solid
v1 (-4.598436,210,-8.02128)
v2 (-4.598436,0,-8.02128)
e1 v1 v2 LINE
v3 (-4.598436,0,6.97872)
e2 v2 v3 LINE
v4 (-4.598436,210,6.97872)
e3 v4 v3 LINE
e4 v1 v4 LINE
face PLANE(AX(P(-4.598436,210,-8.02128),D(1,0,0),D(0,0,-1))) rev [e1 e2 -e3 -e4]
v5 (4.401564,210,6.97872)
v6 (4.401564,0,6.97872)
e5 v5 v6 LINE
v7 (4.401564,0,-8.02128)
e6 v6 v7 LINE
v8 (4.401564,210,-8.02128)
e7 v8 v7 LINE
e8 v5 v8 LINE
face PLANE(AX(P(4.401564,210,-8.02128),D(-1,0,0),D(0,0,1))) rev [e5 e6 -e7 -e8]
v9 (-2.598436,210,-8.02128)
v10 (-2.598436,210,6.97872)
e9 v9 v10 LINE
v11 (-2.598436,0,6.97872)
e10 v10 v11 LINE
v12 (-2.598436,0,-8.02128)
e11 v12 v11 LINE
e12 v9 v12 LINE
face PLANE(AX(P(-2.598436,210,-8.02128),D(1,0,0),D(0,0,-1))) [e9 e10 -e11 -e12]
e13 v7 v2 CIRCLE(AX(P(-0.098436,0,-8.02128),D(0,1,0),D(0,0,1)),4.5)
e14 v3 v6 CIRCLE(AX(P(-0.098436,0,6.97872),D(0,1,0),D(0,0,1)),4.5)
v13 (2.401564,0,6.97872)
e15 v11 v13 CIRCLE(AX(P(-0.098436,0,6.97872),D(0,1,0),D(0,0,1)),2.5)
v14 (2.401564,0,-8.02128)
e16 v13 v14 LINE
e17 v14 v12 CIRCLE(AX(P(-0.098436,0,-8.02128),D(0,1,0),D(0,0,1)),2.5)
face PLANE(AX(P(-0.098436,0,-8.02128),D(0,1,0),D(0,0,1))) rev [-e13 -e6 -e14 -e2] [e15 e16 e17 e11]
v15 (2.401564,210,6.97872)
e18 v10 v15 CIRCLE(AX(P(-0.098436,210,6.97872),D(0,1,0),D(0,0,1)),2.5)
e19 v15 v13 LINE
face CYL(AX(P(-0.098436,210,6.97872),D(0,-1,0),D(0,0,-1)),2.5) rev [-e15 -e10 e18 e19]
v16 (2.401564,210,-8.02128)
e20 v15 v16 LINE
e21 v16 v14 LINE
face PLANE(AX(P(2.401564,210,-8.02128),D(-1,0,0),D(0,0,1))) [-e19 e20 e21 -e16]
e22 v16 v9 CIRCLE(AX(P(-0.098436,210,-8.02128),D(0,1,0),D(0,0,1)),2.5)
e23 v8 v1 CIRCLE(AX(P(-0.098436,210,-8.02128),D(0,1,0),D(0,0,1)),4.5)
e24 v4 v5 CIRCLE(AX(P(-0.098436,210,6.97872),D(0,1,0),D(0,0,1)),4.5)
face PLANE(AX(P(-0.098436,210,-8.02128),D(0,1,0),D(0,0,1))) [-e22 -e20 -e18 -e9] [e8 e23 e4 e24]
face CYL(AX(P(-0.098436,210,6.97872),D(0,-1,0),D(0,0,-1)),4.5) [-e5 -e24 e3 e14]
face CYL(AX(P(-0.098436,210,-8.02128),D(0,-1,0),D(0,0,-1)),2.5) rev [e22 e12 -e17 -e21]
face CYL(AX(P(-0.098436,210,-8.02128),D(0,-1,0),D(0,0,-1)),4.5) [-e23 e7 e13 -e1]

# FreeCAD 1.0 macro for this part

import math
import FreeCAD as App
import Part
import Sketcher
from FreeCAD import Vector

doc = App.newDocument("Part")
params = doc.addObject("Spreadsheet::Sheet", "Params")
for row, (alias, value) in enumerate([
    ("sketch1_radius", "4.5 mm"),
    ("sketch1_radius2", "2.5 mm"),
    ("sketch1_height", "15 mm"),
    ("pad1_length", "210 mm"),
], start=1):
    params.set(f"A{row}", alias)
    params.set(f"B{row}", "=" + value)
    params.setAlias(f"B{row}", alias)

body = doc.addObject("PartDesign::Body", "Body")

# Sketch on XZ plane
sketch1 = doc.addObject("Sketcher::SketchObject", "Sketch")
body.addObject(sketch1)
sketch1.AttachmentSupport = (doc.XZ_Plane, [""])
sketch1.MapMode = "FlatFace"
sketch1.addGeometry(Part.LineSegment(Vector(-4.598436, -8.02128, 0), Vector(-4.598436, 6.97872, 0)), False)
sketch1.addGeometry(Part.ArcOfCircle(Part.Circle(Vector(-0.098436, 6.97872, 0), Vector(0, 0, 1), 4.5), math.radians(0), math.radians(180)), False)
sketch1.addGeometry(Part.LineSegment(Vector(4.401564, 6.97872, 0), Vector(4.401564, -8.02128, 0)), False)
sketch1.addGeometry(Part.ArcOfCircle(Part.Circle(Vector(-0.098436, -8.02128, 0), Vector(0, 0, 1), 4.5), math.radians(180), math.radians(360)), False)
sketch1.addGeometry(Part.LineSegment(Vector(-2.598436, 6.97872, 0), Vector(-2.598436, -8.02128, 0)), False)
sketch1.addGeometry(Part.ArcOfCircle(Part.Circle(Vector(-0.098436, -8.02128, 0), Vector(0, 0, 1), 2.5), math.radians(180), math.radians(360)), False)
sketch1.addGeometry(Part.LineSegment(Vector(2.401564, -8.02128, 0), Vector(2.401564, 6.97872, 0)), False)
sketch1.addGeometry(Part.ArcOfCircle(Part.Circle(Vector(-0.098436, 6.97872, 0), Vector(0, 0, 1), 2.5), math.radians(0), math.radians(180)), False)
sketch1.addConstraint(Sketcher.Constraint("Tangent", 0, 2, 1, 2))
sketch1.addConstraint(Sketcher.Constraint("Tangent", 1, 1, 2, 1))
sketch1.addConstraint(Sketcher.Constraint("Tangent", 2, 2, 3, 2))
sketch1.addConstraint(Sketcher.Constraint("Tangent", 3, 1, 0, 1))
sketch1.addConstraint(Sketcher.Constraint("Tangent", 4, 2, 5, 1))
sketch1.addConstraint(Sketcher.Constraint("Tangent", 5, 2, 6, 1))
sketch1.addConstraint(Sketcher.Constraint("Tangent", 6, 2, 7, 1))
sketch1.addConstraint(Sketcher.Constraint("Tangent", 7, 2, 4, 1))
sketch1.addConstraint(Sketcher.Constraint("Vertical", 0))
sketch1.addConstraint(Sketcher.Constraint("Vertical", 2))
sketch1.addConstraint(Sketcher.Constraint("Vertical", 4))
sketch1.addConstraint(Sketcher.Constraint("Vertical", 6))
sketch1.addConstraint(Sketcher.Constraint("Coincident", 5, 3, 3, 3))
sketch1.addConstraint(Sketcher.Constraint("Horizontal", 7, 3, 0, 2))
sketch1.addConstraint(Sketcher.Constraint("Radius", 1, 4.5))
sketch1.addConstraint(Sketcher.Constraint("Radius", 5, 2.5))
sketch1.addConstraint(Sketcher.Constraint("DistanceY", 0, 1, 0, 2, 15.0))
sketch1.addConstraint(Sketcher.Constraint("DistanceY", -1, 1, 1, 3, 6.97872))
sketch1.addConstraint(Sketcher.Constraint("DistanceX", 1, 3, -1, 1, 0.098436))
sketch1.setExpression("Constraints[14]", "Params.sketch1_radius")
sketch1.setExpression("Constraints[15]", "Params.sketch1_radius2")
sketch1.setExpression("Constraints[16]", "Params.sketch1_height")
pad1 = doc.addObject("PartDesign::Pad", "Pad")
body.addObject(pad1)
pad1.Profile = sketch1
pad1.setExpression("Length", "Params.pad1_length")
pad1.Reversed = True

doc.recompute()
